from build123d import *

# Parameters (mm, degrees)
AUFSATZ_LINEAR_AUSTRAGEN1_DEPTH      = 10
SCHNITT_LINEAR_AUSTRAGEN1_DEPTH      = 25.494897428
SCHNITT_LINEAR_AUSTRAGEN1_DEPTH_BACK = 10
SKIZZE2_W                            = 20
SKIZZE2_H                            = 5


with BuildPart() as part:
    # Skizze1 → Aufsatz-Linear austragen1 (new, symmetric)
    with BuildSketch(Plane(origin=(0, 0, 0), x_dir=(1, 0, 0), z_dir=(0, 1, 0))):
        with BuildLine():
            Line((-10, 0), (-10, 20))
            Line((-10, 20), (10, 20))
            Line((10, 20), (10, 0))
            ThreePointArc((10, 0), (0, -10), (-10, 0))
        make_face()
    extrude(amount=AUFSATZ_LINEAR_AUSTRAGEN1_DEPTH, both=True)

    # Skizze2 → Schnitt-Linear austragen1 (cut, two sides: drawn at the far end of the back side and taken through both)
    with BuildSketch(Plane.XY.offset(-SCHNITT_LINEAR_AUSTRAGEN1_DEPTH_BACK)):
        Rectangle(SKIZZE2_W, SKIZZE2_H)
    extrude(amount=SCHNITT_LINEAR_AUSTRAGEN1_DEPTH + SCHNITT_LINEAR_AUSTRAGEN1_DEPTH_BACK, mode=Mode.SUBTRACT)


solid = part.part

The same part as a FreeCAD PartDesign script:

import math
import FreeCAD as App
import Part
import Sketcher

V = App.Vector
Q = App.Units.Quantity

doc = App.newDocument("Part")
body = doc.addObject("PartDesign::Body", "Body")

sketch1 = doc.addObject("Sketcher::SketchObject", "Sketch")
body.addObject(sketch1)
sketch1.AttachmentSupport = (doc.XZ_Plane, [""])
sketch1.MapMode = "FlatFace"
sketch1.addGeometry(Part.LineSegment(V(-10, -20, 0), V(-10, 0, 0)), False)
sketch1.addGeometry(Part.ArcOfCircle(Part.Circle(V(0, 0, 0), V(0, 0, 1), 10), math.radians(0), math.radians(180)), False)
sketch1.addGeometry(Part.LineSegment(V(10, 0, 0), V(10, -20, 0)), False)
sketch1.addGeometry(Part.LineSegment(V(10, -20, 0), V(-10, -20, 0)), False)
sketch1.addConstraint(Sketcher.Constraint("Tangent", 0, 2, 1, 2))
sketch1.addConstraint(Sketcher.Constraint("Tangent", 1, 1, 2, 1))
sketch1.addConstraint(Sketcher.Constraint("Coincident", 2, 2, 3, 1))
sketch1.addConstraint(Sketcher.Constraint("Coincident", 3, 2, 0, 1))
sketch1.addConstraint(Sketcher.Constraint("Vertical", 0))
sketch1.addConstraint(Sketcher.Constraint("Vertical", 2))
sketch1.addConstraint(Sketcher.Constraint("Horizontal", 3))
sketch1.addConstraint(Sketcher.Constraint("Coincident", 1, 3, -1, 1))
sketch1.addConstraint(Sketcher.Constraint("Equal", 3, 0))
sketch1.addConstraint(Sketcher.Constraint("Radius", 1, Q("10 mm")))
pad1 = doc.addObject("PartDesign::Pad", "Pad")
body.addObject(pad1)
pad1.Profile = sketch1
pad1.Length = 20
pad1.Midplane = True

sketch2 = doc.addObject("Sketcher::SketchObject", "Sketch001")
body.addObject(sketch2)
sketch2.AttachmentSupport = (doc.XY_Plane, [""])
sketch2.MapMode = "FlatFace"
sketch2.addGeometry(Part.LineSegment(V(-10, 2.5, 0), V(-10, -2.5, 0)), False)
sketch2.addGeometry(Part.LineSegment(V(-10, -2.5, 0), V(10, -2.5, 0)), False)
sketch2.addGeometry(Part.LineSegment(V(10, -2.5, 0), V(10, 2.5, 0)), False)
sketch2.addGeometry(Part.LineSegment(V(10, 2.5, 0), V(-10, 2.5, 0)), False)
sketch2.addConstraint(Sketcher.Constraint("Coincident", 0, 2, 1, 1))
sketch2.addConstraint(Sketcher.Constraint("Coincident", 1, 2, 2, 1))
sketch2.addConstraint(Sketcher.Constraint("Coincident", 2, 2, 3, 1))
sketch2.addConstraint(Sketcher.Constraint("Coincident", 3, 2, 0, 1))
sketch2.addConstraint(Sketcher.Constraint("Vertical", 0))
sketch2.addConstraint(Sketcher.Constraint("Horizontal", 1))
sketch2.addConstraint(Sketcher.Constraint("Vertical", 2))
sketch2.addConstraint(Sketcher.Constraint("Horizontal", 3))
sketch2.addConstraint(Sketcher.Constraint("Symmetric", 0, 2, 2, 2, -1, 1))
sketch2.addConstraint(Sketcher.Constraint("DistanceX", 1, 1, 1, 2, Q("20 mm")))
sketch2.addConstraint(Sketcher.Constraint("DistanceY", 0, 2, 0, 1, Q("5 mm")))
pocket1 = doc.addObject("PartDesign::Pocket", "Pocket")
body.addObject(pocket1)
pocket1.Profile = sketch2
pocket1.Type = "TwoLengths"
pocket1.Length = 25.494897
pocket1.Length2 = 10
pocket1.Reversed = True

doc.recompute()
